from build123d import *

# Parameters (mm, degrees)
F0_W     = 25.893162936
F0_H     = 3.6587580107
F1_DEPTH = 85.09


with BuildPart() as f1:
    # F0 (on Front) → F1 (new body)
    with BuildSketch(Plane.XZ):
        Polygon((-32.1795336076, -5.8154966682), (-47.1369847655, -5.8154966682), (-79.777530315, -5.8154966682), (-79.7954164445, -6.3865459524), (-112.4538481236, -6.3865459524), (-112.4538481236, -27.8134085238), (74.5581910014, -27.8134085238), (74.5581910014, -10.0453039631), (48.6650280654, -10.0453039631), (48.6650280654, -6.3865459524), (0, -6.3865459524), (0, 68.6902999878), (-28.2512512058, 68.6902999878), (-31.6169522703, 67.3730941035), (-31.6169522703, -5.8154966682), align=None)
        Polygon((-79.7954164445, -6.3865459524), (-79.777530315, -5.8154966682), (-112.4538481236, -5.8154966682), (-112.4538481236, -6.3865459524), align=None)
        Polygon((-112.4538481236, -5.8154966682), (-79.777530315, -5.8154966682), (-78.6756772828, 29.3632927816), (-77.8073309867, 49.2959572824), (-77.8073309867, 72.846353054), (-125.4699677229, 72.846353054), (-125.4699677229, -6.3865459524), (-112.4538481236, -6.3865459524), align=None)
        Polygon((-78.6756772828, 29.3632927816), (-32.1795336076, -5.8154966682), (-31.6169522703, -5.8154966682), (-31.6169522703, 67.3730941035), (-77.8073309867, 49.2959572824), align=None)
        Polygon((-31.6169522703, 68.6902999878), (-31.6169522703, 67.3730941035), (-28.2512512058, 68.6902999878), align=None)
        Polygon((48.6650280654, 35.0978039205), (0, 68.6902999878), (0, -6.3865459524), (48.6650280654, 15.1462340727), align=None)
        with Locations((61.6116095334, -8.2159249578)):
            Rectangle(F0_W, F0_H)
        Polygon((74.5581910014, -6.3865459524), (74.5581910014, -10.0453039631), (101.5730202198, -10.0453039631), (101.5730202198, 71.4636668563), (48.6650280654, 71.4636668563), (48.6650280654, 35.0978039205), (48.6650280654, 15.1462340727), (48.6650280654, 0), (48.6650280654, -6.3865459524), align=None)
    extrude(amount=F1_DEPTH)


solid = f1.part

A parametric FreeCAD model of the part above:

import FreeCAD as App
import Part
import Sketcher
Q = App.Units.Quantity

doc = App.newDocument("Part")
body = doc.addObject("PartDesign::Body", "Body")

# Sketch on XZ plane
sketch1 = body.newObject("Sketcher::SketchObject", "Sketch")
sketch1.AttachmentSupport = (doc.getObject("XZ_Plane"), [""])
sketch1.MapMode = "FlatFace"
sketch1.addGeometry([
    Part.LineSegment(App.Vector(-112.5, -27.8, 0), App.Vector(74.6, -27.8, 0)),  # 0
    Part.LineSegment(App.Vector(74.6, -27.8, 0), App.Vector(74.6, -10, 0)),  # 1
    Part.LineSegment(App.Vector(74.6, -10, 0), App.Vector(101.6, -10, 0)),  # 2
    Part.LineSegment(App.Vector(101.6, -10, 0), App.Vector(101.6, 71.5, 0)),  # 3
    Part.LineSegment(App.Vector(101.6, 71.5, 0), App.Vector(48.7, 71.5, 0)),  # 4
    Part.LineSegment(App.Vector(48.7, 71.5, 0), App.Vector(48.7, 35.1, 0)),  # 5
    Part.LineSegment(App.Vector(48.7, 35.1, 0), App.Vector(0, 68.7, 0)),  # 6
    Part.LineSegment(App.Vector(0, 68.7, 0), App.Vector(-31.6, 68.7, 0)),  # 7
    Part.LineSegment(App.Vector(-31.6, 68.7, 0), App.Vector(-31.6, 67.4, 0)),  # 8
    Part.LineSegment(App.Vector(-31.6, 67.4, 0), App.Vector(-77.8, 49.3, 0)),  # 9
    Part.LineSegment(App.Vector(-77.8, 49.3, 0), App.Vector(-77.8, 72.8, 0)),  # 10
    Part.LineSegment(App.Vector(-77.8, 72.8, 0), App.Vector(-125.5, 72.8, 0)),  # 11
    Part.LineSegment(App.Vector(-125.5, 72.8, 0), App.Vector(-125.5, -6.4, 0)),  # 12
    Part.LineSegment(App.Vector(-125.5, -6.4, 0), App.Vector(-112.5, -6.4, 0)),  # 13
    Part.LineSegment(App.Vector(-112.5, -6.4, 0), App.Vector(-112.5, -27.8, 0)),  # 14
    Part.LineSegment(App.Vector(48.7, -6.4, 0), App.Vector(0, -6.4, 0)),  # 15
    Part.LineSegment(App.Vector(0, -6.4, 0), App.Vector(48.7, 15.1, 0)),  # 16
    Part.LineSegment(App.Vector(48.7, 15.1, 0), App.Vector(48.7, -6.4, 0)),  # 17
    Part.LineSegment(App.Vector(-32.2, -5.8, 0), App.Vector(-79.8, -5.8, 0)),  # 18
    Part.LineSegment(App.Vector(-79.8, -5.8, 0), App.Vector(-78.7, 29.4, 0)),  # 19
    Part.LineSegment(App.Vector(-78.7, 29.4, 0), App.Vector(-32.2, -5.8, 0)),  # 20
], False)
sketch1.addConstraint([
    Sketcher.Constraint("Coincident", 0, 2, 1, 1),
    Sketcher.Constraint("Coincident", 1, 2, 2, 1),
    Sketcher.Constraint("Coincident", 2, 2, 3, 1),
    Sketcher.Constraint("Coincident", 3, 2, 4, 1),
    Sketcher.Constraint("Coincident", 4, 2, 5, 1),
    Sketcher.Constraint("Coincident", 5, 2, 6, 1),
    Sketcher.Constraint("Coincident", 6, 2, 7, 1),
    Sketcher.Constraint("Coincident", 7, 2, 8, 1),
    Sketcher.Constraint("Coincident", 8, 2, 9, 1),
    Sketcher.Constraint("Coincident", 9, 2, 10, 1),
    Sketcher.Constraint("Coincident", 10, 2, 11, 1),
    Sketcher.Constraint("Coincident", 11, 2, 12, 1),
    Sketcher.Constraint("Coincident", 12, 2, 13, 1),
    Sketcher.Constraint("Coincident", 13, 2, 14, 1),
    Sketcher.Constraint("Coincident", 14, 2, 0, 1),
    Sketcher.Constraint("Coincident", 15, 2, 16, 1),
    Sketcher.Constraint("Coincident", 16, 2, 17, 1),
    Sketcher.Constraint("Coincident", 17, 2, 15, 1),
    Sketcher.Constraint("Coincident", 18, 2, 19, 1),
    Sketcher.Constraint("Coincident", 19, 2, 20, 1),
    Sketcher.Constraint("Coincident", 20, 2, 18, 1),
    Sketcher.Constraint("Horizontal", 0),
    Sketcher.Constraint("Vertical", 1),
    Sketcher.Constraint("Horizontal", 2),
    Sketcher.Constraint("Vertical", 3),
    Sketcher.Constraint("Horizontal", 4),
    Sketcher.Constraint("Vertical", 5),
    Sketcher.Constraint("Horizontal", 7),
    Sketcher.Constraint("Vertical", 8),
    Sketcher.Constraint("Vertical", 10),
    Sketcher.Constraint("Horizontal", 11),
    Sketcher.Constraint("Vertical", 12),
    Sketcher.Constraint("Horizontal", 13),
    Sketcher.Constraint("Vertical", 14),
    Sketcher.Constraint("Horizontal", 15),
    Sketcher.Constraint("Vertical", 17),
    Sketcher.Constraint("Horizontal", 18),
    Sketcher.Constraint("PointOnObject", 6, 2, -2),
    Sketcher.Constraint("PointOnObject", 15, 2, -2),
    Sketcher.Constraint("Horizontal", 13, 2, 15, 2),
    Sketcher.Constraint("Vertical", 5, 2, 16, 2),
    Sketcher.Constraint("DistanceY", 12, 2, 12, 1, 79.232899),
    Sketcher.Constraint("DistanceX", 0, 1, 0, 2, 187.012039),
    Sketcher.Constraint("DistanceX", 2, 1, 2, 2, 27.014829),
    Sketcher.Constraint("DistanceX", 13, 1, 13, 2, 13.01612),
    Sketcher.Constraint("DistanceX", 15, 2, 15, 1, 48.665028),
    Sketcher.Constraint("DistanceY", 3, 1, 3, 2, 81.508971),
    Sketcher.Constraint("DistanceY", 17, 2, 17, 1, 21.53278),
    Sketcher.Constraint("DistanceY", -1, 1, 6, 2, 68.6903),
    Sketcher.Constraint("DistanceY", 1, 2, 8, 2, 77.418398),
    Sketcher.Constraint("DistanceX", 18, 2, 9, 2, 1.970199),
    Sketcher.Constraint("Distance", 19, 35.196041),
    Sketcher.Constraint("DistanceX", 4, 2, 4, 1, 52.907992),
    Sketcher.Constraint("DistanceX", 7, 2, 7, 1, 31.616952),
    Sketcher.Constraint("DistanceX", 11, 2, 11, 1, 47.662637),
    Sketcher.Constraint("DistanceX", 18, 2, 18, 1, 47.597997),
    Sketcher.Constraint("DistanceY", 1, 1, 1, 2, 17.768105),
    Sketcher.Constraint("DistanceY", 5, 2, 5, 1, 36.365863),
    Sketcher.Constraint("DistanceY", 8, 2, 8, 1, 1.317206),
    Sketcher.Constraint("DistanceY", 10, 1, 10, 2, 23.550396),
    Sketcher.Constraint("DistanceY", 14, 2, 14, 1, 21.426863),
    Sketcher.Constraint("DistanceY", 13, 2, 18, 2, 0.571049),
    Sketcher.Constraint("DistanceY", 18, 2, 19, 2, 35.178789),
])
pad1 = body.newObject("PartDesign::Pad", "Pad")
pad1.Profile = sketch1
pad1.Length = Q("3.35 in")

doc.recompute()
